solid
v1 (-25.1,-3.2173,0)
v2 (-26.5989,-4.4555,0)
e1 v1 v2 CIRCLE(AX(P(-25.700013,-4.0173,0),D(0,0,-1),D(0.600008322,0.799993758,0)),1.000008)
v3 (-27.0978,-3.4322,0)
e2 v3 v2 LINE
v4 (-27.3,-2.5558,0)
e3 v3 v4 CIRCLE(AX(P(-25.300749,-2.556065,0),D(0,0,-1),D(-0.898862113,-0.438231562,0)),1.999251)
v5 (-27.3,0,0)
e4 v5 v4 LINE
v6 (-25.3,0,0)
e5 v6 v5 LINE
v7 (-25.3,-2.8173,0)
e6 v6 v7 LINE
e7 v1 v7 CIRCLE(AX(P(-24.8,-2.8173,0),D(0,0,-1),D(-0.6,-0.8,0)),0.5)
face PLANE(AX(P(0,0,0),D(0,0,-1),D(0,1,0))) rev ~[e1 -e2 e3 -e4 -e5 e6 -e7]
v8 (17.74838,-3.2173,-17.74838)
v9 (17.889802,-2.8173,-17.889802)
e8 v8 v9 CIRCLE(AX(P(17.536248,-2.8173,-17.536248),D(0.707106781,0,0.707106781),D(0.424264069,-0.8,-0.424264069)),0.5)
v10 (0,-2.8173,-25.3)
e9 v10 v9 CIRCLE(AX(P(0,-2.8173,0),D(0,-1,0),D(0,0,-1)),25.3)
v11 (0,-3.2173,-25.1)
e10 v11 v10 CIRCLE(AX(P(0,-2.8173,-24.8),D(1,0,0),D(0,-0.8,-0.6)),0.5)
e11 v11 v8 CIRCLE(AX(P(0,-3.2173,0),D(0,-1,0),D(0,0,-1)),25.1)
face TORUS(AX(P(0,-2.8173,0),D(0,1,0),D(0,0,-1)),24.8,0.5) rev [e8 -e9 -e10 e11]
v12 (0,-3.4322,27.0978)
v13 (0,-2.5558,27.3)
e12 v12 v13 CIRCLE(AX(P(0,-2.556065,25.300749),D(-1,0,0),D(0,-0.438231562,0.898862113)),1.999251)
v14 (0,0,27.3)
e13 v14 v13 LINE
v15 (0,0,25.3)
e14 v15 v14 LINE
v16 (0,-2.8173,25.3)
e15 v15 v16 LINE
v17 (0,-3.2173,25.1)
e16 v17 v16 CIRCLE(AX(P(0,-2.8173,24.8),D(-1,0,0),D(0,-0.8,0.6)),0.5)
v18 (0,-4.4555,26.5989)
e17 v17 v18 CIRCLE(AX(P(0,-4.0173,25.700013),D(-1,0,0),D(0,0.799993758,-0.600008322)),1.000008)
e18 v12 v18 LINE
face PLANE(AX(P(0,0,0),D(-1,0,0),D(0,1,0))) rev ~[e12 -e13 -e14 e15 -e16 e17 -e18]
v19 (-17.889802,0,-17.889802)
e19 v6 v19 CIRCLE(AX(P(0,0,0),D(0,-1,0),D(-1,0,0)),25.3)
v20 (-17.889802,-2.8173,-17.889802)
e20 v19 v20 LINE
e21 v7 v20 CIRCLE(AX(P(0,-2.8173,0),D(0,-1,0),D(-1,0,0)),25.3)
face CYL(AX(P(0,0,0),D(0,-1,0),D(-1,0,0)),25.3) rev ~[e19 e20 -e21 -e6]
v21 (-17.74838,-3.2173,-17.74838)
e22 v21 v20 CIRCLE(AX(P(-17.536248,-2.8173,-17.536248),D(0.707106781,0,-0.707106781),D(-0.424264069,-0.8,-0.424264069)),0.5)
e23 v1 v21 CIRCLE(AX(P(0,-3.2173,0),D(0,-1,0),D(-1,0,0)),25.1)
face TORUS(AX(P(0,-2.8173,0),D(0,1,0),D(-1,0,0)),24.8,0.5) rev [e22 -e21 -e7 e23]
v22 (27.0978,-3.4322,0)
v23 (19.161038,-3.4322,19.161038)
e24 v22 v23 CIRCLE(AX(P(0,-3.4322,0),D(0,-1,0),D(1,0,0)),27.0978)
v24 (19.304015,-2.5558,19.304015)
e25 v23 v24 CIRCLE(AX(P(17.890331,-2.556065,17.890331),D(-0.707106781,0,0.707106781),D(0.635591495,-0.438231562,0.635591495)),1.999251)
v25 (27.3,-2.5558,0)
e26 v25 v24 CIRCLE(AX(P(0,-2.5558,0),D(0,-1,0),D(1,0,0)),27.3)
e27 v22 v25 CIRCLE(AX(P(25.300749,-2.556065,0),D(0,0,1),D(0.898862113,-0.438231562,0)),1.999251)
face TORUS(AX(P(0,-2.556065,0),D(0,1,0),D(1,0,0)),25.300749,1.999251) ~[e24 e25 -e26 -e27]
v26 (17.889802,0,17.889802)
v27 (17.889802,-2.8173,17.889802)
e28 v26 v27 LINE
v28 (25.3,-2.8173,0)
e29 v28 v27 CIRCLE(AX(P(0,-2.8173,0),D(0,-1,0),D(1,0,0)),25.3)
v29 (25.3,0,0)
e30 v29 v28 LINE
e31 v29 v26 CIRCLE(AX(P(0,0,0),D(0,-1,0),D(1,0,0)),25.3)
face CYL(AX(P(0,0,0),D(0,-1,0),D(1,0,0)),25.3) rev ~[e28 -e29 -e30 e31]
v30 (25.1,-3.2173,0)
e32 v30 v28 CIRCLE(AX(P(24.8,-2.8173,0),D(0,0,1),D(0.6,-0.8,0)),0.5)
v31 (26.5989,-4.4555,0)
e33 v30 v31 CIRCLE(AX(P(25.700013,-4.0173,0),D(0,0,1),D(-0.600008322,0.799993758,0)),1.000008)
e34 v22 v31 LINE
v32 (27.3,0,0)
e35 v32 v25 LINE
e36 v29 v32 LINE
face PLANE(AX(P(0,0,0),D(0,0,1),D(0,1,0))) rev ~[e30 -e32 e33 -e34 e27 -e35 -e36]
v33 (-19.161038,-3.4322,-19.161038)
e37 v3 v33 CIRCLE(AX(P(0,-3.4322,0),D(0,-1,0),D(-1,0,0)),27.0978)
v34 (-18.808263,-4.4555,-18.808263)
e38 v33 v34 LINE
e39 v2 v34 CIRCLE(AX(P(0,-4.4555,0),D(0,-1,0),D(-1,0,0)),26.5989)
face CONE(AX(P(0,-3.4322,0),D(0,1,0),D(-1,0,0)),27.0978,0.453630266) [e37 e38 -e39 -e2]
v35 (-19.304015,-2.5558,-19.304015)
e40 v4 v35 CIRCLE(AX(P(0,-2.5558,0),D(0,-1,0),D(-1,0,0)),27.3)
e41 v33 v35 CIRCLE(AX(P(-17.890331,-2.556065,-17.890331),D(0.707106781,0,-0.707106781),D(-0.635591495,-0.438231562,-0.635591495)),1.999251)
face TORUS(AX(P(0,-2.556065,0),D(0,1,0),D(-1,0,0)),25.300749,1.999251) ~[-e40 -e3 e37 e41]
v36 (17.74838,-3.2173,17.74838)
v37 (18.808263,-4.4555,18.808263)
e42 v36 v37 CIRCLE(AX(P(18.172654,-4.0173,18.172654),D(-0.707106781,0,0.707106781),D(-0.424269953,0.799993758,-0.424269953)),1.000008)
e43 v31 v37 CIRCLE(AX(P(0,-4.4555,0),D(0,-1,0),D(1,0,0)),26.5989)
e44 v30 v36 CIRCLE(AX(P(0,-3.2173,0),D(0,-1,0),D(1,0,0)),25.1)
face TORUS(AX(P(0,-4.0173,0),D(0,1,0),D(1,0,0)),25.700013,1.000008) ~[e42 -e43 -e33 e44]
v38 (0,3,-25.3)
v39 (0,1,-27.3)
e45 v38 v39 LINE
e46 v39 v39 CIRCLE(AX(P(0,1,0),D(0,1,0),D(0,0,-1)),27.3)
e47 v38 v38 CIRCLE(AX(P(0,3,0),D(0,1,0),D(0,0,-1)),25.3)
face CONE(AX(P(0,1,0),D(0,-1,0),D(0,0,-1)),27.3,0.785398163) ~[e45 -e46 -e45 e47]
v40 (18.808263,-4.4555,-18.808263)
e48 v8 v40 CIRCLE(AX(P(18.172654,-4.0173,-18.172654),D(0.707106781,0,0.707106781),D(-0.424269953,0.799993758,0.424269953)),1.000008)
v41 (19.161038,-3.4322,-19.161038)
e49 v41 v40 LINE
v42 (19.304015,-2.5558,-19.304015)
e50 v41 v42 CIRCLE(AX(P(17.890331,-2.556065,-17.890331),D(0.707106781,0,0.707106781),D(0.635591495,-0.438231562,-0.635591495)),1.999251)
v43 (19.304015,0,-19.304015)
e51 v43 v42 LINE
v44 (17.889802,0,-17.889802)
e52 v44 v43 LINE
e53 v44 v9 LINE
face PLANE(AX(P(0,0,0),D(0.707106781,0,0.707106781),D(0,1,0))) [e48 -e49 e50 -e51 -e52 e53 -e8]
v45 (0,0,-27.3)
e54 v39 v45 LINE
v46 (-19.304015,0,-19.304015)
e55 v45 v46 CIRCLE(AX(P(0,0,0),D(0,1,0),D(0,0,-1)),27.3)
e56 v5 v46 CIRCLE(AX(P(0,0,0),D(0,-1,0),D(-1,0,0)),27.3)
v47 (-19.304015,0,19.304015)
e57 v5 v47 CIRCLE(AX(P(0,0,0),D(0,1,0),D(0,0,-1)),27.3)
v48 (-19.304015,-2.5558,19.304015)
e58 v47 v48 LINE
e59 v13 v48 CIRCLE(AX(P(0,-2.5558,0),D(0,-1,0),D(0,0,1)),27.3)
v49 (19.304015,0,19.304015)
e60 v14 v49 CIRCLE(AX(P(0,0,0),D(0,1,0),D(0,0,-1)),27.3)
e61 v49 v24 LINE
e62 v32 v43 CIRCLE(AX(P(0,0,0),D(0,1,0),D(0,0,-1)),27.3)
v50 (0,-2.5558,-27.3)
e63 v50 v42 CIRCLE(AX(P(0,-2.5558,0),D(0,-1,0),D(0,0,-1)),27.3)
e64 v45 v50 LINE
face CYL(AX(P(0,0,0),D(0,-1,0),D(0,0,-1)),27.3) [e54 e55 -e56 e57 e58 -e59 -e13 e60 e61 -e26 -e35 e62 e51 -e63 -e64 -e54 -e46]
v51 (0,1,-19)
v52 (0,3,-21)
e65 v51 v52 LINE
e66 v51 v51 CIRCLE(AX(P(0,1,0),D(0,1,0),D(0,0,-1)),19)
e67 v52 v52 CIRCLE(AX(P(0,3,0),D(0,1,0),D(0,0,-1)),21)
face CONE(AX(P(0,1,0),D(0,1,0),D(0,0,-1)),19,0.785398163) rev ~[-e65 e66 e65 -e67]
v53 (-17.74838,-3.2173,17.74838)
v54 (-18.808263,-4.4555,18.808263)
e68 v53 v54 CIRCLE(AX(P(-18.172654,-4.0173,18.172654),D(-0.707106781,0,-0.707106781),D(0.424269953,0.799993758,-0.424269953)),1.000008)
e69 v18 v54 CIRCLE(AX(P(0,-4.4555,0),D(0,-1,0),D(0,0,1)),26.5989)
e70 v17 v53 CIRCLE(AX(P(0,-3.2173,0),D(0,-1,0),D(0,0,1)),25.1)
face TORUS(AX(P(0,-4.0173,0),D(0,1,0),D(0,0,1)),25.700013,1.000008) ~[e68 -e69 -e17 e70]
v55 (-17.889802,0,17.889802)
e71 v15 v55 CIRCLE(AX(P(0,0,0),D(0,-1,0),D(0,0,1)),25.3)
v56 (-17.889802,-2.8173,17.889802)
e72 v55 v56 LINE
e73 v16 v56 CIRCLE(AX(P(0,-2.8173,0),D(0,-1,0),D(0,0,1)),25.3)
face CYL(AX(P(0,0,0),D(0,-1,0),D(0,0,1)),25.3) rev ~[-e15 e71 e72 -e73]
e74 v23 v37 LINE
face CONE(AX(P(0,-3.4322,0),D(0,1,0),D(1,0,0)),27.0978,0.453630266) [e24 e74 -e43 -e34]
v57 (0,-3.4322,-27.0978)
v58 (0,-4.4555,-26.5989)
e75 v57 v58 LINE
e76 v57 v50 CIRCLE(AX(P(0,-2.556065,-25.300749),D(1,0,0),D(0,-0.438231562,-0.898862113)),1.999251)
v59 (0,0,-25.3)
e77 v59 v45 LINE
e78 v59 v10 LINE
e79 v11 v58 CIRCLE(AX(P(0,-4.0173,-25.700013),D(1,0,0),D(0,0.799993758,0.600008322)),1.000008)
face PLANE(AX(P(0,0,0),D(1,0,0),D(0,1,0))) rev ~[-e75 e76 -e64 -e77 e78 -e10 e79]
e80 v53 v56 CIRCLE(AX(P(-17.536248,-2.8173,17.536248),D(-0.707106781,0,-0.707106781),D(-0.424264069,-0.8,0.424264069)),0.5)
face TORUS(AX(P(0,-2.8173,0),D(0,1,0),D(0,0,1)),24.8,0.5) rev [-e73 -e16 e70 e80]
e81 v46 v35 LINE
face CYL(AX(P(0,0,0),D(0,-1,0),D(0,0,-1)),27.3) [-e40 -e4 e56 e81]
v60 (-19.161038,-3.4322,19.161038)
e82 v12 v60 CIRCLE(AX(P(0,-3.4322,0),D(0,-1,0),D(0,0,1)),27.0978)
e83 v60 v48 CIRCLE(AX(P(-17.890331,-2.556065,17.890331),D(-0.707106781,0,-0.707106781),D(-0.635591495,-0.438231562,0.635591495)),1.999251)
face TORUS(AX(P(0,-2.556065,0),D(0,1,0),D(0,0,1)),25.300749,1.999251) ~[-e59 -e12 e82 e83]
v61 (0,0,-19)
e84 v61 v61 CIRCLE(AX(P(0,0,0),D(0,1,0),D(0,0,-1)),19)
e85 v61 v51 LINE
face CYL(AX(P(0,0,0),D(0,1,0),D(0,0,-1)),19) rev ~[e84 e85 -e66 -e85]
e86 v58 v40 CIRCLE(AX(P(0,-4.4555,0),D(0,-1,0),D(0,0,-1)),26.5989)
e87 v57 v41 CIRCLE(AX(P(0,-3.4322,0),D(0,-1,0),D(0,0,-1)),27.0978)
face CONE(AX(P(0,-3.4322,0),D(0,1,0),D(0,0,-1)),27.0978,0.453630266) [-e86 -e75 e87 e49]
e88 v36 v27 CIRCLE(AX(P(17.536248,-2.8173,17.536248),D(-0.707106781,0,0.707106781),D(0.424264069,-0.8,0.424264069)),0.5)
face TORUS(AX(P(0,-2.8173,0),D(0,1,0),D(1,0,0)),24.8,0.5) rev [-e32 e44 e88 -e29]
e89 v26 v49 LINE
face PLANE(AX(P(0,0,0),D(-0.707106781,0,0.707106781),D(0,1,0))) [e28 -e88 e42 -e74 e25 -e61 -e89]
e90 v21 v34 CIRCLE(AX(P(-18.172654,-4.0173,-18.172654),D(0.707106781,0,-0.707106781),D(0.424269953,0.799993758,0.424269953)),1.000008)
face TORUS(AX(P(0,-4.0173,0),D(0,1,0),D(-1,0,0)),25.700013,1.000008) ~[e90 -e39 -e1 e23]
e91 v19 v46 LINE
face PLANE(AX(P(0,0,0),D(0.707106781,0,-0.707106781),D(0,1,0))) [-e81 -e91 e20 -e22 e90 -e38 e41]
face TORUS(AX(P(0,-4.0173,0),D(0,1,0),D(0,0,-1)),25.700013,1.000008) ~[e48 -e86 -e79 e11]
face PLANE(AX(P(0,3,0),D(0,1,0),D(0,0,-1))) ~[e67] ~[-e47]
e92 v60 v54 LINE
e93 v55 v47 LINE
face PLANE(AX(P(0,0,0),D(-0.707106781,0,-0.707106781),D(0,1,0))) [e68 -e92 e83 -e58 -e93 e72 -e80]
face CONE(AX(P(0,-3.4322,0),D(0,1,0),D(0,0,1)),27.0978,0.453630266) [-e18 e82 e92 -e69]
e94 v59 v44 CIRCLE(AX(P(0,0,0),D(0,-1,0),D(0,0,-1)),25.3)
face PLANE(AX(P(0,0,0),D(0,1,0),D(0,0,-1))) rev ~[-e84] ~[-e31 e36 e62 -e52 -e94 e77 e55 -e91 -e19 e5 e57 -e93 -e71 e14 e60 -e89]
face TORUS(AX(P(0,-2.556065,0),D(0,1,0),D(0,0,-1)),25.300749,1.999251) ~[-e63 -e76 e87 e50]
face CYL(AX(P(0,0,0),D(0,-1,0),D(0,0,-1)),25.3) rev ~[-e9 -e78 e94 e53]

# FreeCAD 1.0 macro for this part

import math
import FreeCAD as App
import Part
import Sketcher
from FreeCAD import Vector
Q = App.Units.Quantity


def edges_at(feature, points):
    """Names of the edges that pass closest to the given points."""
    edges = feature.Shape.Edges
    near = lambda p: min(range(len(edges)), key=lambda i: edges[i].distToShape(Part.Vertex(*p))[0])
    return sorted({f"Edge{near(p) + 1}" for p in points})

doc = App.newDocument("Part")
body = doc.addObject("PartDesign::Body", "Body")

# Sketch on YZ plane
sketch1 = doc.addObject("Sketcher::SketchObject", "Sketch")
body.addObject(sketch1)
sketch1.AttachmentSupport = (doc.YZ_Plane, [""])
sketch1.MapMode = "FlatFace"
sketch1.addGeometry([
    Part.LineSegment(Vector(3, -19, 0), Vector(0, -19, 0)),
    Part.LineSegment(Vector(0, -19, 0), Vector(0, -27.3, 0)),
    Part.LineSegment(Vector(0, -27.3, 0), Vector(3, -27.3, 0)),
    Part.LineSegment(Vector(3, -27.3, 0), Vector(3, -19, 0)),
], False)
sketch1.addConstraint([
    Sketcher.Constraint("Coincident", 0, 2, 1, 1),
    Sketcher.Constraint("Coincident", 1, 2, 2, 1),
    Sketcher.Constraint("Coincident", 2, 2, 3, 1),
    Sketcher.Constraint("Coincident", 3, 2, 0, 1),
    Sketcher.Constraint("Horizontal", 0),
    Sketcher.Constraint("Vertical", 1),
    Sketcher.Constraint("Horizontal", 2),
    Sketcher.Constraint("Vertical", 3),
    Sketcher.Constraint("PointOnObject", 0, 2, -2),
    Sketcher.Constraint("DistanceX", 0, 2, 0, 1, Q("3 mm")),
    Sketcher.Constraint("DistanceY", 0, 2, -1, 1, Q("19 mm")),
    Sketcher.Constraint("DistanceY", 1, 2, -1, 1, Q("27.3 mm")),
])
revolution = doc.addObject("PartDesign::Revolution", "Revolution")
body.addObject(revolution)
revolution.Profile = sketch1
revolution.ReferenceAxis = (sketch1, ["H_Axis"])
revolution.Angle = 360
doc.recompute()

chamfer = doc.addObject("PartDesign::Chamfer", "Chamfer")
body.addObject(chamfer)
chamfer.Base = (revolution, edges_at(revolution, [(0, 3, 19)]))
chamfer.Size = 2
doc.recompute()

chamfer2 = doc.addObject("PartDesign::Chamfer", "Chamfer001")
body.addObject(chamfer2)
chamfer2.Base = (chamfer, edges_at(chamfer, [(0, 3, 27.3)]))
chamfer2.Size = 2

# Sketch on YZ plane
sketch2 = doc.addObject("Sketcher::SketchObject", "Sketch001")
body.addObject(sketch2)
sketch2.AttachmentSupport = (doc.YZ_Plane, [""])
sketch2.MapMode = "FlatFace"
sketch2.addGeometry([
    Part.LineSegment(Vector(0, -27.3, 0), Vector(0, -25.3, 0)),  # 0
    Part.LineSegment(Vector(0, -25.3, 0), Vector(-2.82, -25.3, 0)),  # 1
    Part.ArcOfCircle(Part.Circle(Vector(-2.82, -24.8, 0), Vector(0, 0, 1), 0.5), math.radians(-143), math.radians(-90)),  # 2
    Part.ArcOfCircle(Part.Circle(Vector(-4.02, -25.7, 0), Vector(0, 0, 1), 1), math.radians(37), math.radians(244)),  # 3
    Part.LineSegment(Vector(-4.46, -26.6, 0), Vector(-3.43, -27.1, 0)),  # 4
    Part.ArcOfCircle(Part.Circle(Vector(-2.56, -25.3, 0), Vector(0, 0, 1), 2), math.radians(-116), math.radians(-90)),  # 5
    Part.LineSegment(Vector(-2.56, -27.3, 0), Vector(0, -27.3, 0)),  # 6
], False)
sketch2.addConstraint([
    Sketcher.Constraint("Coincident", 0, 2, 1, 1),
    Sketcher.Constraint("Tangent", 1, 2, 2, 2),
    Sketcher.Constraint("Tangent", 2, 1, 3, 1),
    Sketcher.Constraint("Tangent", 3, 2, 4, 1),
    Sketcher.Constraint("Tangent", 4, 2, 5, 1),
    Sketcher.Constraint("Tangent", 5, 2, 6, 1),
    Sketcher.Constraint("Coincident", 6, 2, 0, 1),
    Sketcher.Constraint("Vertical", 0),
    Sketcher.Constraint("Horizontal", 1),
    Sketcher.Constraint("Horizontal", 6),
    Sketcher.Constraint("PointOnObject", 0, 2, -2),
    Sketcher.Constraint("Horizontal", 5, 3, 0, 2),
    Sketcher.Constraint("Radius", 3, Q("1 mm")),
    Sketcher.Constraint("Radius", 5, Q("2 mm")),
    Sketcher.Constraint("Radius", 2, Q("0.5 mm")),
    Sketcher.Constraint("DistanceY", 2, 3, -1, 1, Q("24.8 mm")),
    Sketcher.Constraint("DistanceY", 2, 1, 2, 3, Q("0.3 mm")),
    Sketcher.Constraint("Angle", 4, Q("-25.991 deg")),
    Sketcher.Constraint("DistanceX", 1, 2, 1, 1, Q("2.8173 mm")),
])
revolution2 = doc.addObject("PartDesign::Revolution", "Revolution001")
body.addObject(revolution2)
revolution2.Profile = sketch2
revolution2.ReferenceAxis = (sketch2, ["H_Axis"])
revolution2.Angle = 45
revolution2.Reversed = True
doc.recompute()

polarpattern = doc.addObject("PartDesign::PolarPattern", "PolarPattern")
body.addObject(polarpattern)
polarpattern.Originals = [revolution2]
polarpattern.Axis = (doc.Y_Axis, [""])
polarpattern.Angle = 360
polarpattern.Occurrences = 4
body.Tip = polarpattern

doc.recompute()
